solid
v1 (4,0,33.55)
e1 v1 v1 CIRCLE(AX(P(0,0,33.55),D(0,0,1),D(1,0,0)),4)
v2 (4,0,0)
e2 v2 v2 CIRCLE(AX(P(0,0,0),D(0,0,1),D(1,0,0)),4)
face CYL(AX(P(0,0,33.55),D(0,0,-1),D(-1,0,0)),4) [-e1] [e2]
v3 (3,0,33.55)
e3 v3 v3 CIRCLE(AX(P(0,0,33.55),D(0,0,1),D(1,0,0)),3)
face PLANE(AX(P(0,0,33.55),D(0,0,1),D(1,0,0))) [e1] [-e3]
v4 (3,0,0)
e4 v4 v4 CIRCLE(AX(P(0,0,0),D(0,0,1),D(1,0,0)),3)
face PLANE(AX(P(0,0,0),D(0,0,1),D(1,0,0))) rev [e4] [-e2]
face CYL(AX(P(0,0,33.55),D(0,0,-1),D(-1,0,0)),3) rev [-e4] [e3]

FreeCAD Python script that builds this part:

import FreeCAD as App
import Part
import Sketcher

V = App.Vector

doc = App.newDocument("Part")
body = doc.addObject("PartDesign::Body", "Body")

# Sketch on XY plane
sketch1 = doc.addObject("Sketcher::SketchObject", "Sketch")
body.addObject(sketch1)
sketch1.AttachmentSupport = (doc.XY_Plane, [""])
sketch1.MapMode = "FlatFace"
sketch1.addGeometry([
    Part.Circle(V(0, 0, 0), V(0, 0, 1), 4),
    Part.Circle(V(0, 0, 0), V(0, 0, 1), 3),
], False)
sketch1.addConstraint([
    Sketcher.Constraint("Coincident", 0, 3, -1, 1),
    Sketcher.Constraint("Coincident", 1, 3, -1, 1),
    Sketcher.Constraint("Diameter", 0, 8.0),
    Sketcher.Constraint("Diameter", 1, 6.0),
])
pad1 = doc.addObject("PartDesign::Pad", "Pad")
body.addObject(pad1)
pad1.Profile = sketch1
pad1.Length = 33.55

doc.recompute()
